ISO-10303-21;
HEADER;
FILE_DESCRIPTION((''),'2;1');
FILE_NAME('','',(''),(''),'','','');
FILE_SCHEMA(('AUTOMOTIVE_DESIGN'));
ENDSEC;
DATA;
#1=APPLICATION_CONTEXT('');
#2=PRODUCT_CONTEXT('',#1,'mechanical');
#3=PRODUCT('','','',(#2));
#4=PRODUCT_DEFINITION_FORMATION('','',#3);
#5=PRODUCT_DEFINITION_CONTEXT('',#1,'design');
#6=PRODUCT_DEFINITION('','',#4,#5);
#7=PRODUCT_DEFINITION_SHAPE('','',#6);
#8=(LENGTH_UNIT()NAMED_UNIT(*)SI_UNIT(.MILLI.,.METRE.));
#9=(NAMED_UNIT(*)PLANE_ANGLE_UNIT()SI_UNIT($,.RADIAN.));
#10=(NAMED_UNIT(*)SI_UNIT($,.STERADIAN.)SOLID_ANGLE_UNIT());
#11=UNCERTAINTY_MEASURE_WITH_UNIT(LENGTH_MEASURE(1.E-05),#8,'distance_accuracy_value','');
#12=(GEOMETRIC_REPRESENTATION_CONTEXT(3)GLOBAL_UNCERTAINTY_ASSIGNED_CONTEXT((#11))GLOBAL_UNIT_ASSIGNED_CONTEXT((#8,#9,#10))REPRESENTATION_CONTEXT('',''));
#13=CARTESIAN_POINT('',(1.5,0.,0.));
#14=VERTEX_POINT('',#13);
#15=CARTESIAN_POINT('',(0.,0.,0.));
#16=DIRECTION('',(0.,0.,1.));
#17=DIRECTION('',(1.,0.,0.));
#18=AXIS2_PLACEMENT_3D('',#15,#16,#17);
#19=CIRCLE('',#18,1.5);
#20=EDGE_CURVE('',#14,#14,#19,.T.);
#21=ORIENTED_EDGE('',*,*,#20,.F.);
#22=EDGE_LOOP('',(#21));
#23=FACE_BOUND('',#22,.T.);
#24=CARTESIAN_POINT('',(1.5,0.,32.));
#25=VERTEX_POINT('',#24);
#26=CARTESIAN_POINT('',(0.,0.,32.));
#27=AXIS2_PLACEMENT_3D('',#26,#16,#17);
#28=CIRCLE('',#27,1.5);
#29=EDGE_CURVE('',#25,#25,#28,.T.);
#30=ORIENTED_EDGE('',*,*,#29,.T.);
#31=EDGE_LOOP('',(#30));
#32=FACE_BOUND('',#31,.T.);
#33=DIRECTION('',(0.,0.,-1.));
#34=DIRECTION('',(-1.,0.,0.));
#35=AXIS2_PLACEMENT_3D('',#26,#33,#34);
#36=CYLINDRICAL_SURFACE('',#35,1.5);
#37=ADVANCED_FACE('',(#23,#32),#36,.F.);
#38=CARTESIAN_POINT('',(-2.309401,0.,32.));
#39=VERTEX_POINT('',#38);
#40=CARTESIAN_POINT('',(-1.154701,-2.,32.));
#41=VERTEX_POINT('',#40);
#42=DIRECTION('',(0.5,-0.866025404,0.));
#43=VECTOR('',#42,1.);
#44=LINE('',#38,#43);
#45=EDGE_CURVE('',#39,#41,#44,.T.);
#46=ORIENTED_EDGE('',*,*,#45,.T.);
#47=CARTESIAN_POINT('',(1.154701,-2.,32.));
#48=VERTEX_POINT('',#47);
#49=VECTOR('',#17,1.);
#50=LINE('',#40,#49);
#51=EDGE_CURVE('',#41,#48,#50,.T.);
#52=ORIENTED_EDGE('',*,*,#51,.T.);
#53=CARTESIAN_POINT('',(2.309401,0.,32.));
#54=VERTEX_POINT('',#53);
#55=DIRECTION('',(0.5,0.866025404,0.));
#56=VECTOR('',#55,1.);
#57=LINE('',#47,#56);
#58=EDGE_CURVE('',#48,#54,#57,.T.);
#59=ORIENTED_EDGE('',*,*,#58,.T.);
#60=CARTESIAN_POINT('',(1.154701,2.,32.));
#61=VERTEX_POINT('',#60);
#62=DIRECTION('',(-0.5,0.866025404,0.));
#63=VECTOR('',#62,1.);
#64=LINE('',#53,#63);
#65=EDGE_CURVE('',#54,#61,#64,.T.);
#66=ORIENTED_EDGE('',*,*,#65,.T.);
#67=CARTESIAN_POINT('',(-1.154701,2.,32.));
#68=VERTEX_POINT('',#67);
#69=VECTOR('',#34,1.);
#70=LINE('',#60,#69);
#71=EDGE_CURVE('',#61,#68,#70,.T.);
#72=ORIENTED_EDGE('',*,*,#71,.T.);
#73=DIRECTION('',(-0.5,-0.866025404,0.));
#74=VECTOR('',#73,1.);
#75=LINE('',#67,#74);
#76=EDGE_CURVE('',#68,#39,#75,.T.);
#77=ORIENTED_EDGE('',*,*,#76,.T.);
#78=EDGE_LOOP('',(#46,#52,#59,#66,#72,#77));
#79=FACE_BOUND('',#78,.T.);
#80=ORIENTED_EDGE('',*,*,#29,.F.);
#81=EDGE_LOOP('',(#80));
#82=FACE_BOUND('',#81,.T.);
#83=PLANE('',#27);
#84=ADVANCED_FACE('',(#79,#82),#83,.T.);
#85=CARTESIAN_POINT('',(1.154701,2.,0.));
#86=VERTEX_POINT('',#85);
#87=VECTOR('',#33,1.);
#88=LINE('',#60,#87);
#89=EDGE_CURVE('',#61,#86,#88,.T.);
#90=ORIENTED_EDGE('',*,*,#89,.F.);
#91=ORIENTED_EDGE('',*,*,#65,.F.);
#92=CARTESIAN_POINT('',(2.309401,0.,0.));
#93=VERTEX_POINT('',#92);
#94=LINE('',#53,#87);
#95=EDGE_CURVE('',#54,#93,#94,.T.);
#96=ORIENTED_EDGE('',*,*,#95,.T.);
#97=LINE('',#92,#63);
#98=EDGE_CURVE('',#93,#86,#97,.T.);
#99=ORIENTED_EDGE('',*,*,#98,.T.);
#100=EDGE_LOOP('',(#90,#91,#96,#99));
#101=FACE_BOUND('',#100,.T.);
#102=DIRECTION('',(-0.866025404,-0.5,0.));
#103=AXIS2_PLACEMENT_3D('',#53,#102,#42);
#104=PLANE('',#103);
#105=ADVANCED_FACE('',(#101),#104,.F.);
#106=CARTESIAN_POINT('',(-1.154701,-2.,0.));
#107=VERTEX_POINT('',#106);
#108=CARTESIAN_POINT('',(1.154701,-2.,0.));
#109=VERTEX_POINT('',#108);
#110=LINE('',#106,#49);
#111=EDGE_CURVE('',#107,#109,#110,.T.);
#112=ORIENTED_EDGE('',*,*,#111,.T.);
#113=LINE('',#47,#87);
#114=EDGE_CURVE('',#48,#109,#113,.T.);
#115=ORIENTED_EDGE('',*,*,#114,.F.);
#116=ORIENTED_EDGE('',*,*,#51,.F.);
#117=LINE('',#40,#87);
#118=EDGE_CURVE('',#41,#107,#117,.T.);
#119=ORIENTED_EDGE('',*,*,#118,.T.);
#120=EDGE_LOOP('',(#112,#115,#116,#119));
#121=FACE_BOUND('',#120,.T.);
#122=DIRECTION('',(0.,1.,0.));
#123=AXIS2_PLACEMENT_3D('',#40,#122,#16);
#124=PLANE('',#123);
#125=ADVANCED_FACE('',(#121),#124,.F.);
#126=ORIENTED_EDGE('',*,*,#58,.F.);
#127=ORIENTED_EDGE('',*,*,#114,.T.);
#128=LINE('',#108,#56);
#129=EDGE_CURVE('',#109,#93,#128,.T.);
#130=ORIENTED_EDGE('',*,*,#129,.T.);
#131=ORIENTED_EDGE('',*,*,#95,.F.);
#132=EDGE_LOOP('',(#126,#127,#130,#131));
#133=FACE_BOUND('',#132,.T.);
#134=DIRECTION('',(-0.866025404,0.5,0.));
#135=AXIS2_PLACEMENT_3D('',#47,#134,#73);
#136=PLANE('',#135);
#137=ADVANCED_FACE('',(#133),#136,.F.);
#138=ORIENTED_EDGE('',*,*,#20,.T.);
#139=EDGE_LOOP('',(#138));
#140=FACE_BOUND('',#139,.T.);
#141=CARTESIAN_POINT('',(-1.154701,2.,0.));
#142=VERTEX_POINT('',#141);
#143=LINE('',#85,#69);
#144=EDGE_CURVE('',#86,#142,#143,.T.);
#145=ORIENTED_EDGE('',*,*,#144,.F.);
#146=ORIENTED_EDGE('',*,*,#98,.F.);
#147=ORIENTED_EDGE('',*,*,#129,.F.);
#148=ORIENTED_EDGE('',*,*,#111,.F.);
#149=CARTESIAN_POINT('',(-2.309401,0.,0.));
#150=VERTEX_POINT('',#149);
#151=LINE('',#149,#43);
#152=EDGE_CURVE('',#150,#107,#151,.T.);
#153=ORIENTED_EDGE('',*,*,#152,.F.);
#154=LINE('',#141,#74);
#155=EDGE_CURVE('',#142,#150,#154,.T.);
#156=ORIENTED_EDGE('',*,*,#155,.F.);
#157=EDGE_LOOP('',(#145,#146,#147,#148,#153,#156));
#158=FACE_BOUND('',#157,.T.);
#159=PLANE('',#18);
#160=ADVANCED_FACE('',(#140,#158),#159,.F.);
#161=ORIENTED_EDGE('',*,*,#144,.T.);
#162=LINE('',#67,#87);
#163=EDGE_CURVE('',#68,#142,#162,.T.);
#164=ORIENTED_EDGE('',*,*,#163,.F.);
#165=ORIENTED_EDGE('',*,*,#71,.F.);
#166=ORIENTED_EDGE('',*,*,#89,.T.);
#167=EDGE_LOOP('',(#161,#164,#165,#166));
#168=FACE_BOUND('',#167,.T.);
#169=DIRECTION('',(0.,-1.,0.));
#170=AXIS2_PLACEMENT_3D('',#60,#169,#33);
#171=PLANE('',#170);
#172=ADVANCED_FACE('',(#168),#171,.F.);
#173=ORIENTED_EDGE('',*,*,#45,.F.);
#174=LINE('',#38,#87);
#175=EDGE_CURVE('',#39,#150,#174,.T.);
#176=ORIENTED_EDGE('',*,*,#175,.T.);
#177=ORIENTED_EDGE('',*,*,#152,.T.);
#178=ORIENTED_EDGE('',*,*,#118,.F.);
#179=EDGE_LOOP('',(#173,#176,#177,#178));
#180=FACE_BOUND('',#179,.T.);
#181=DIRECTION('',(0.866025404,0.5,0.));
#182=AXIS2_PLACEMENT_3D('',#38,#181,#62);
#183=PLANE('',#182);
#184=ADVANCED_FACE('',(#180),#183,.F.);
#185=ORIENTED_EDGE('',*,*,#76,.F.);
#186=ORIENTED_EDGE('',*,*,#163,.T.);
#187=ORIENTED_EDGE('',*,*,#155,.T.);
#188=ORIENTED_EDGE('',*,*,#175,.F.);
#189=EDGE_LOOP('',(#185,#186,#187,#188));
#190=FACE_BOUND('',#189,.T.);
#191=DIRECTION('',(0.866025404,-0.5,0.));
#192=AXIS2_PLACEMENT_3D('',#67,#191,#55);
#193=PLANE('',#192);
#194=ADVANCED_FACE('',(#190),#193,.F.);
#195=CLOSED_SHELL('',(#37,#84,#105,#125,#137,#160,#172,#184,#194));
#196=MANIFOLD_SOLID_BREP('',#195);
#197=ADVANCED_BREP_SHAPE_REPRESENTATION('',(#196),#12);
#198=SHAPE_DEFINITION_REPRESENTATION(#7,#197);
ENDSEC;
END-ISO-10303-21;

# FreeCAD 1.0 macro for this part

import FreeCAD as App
import Part
import Sketcher
Q = App.Units.Quantity


def add_polygon(sketch, points):
    """Adds a closed chain of lines whose ends are joined by coincident constraints."""
    first, n = sketch.GeometryCount, len(points)
    for a, b in zip(points, points[1:] + points[:1]):
        sketch.addGeometry(Part.LineSegment(App.Vector(*a, 0), App.Vector(*b, 0)), False)
    for i in range(n):
        sketch.addConstraint(Sketcher.Constraint("Coincident", first + i, 2, first + (i + 1) % n, 1))

doc = App.newDocument("Part")
body = doc.addObject("PartDesign::Body", "Body")

# Sketch on XY plane
sketch1 = doc.addObject("Sketcher::SketchObject", "Sketch")
body.addObject(sketch1)
sketch1.AttachmentSupport = (doc.XY_Plane, [""])
sketch1.MapMode = "FlatFace"
add_polygon(sketch1, [(2.3, 0), (1.2, 2), (-1.2, 2), (-2.3, 0), (-1.2, -2), (1.2, -2)])  # lines 0-5
sketch1.addGeometry(Part.Circle(App.Vector(0, 0, 0), App.Vector(0, 0, 1), 1.5), False)  # 6
sketch1.addConstraint([
    Sketcher.Constraint("Horizontal", 1),
    Sketcher.Constraint("Horizontal", 4),
    Sketcher.Constraint("Coincident", 6, 3, -1, 1),
    Sketcher.Constraint("Symmetric", 0, 2, 3, 2, -1, 1),
    Sketcher.Constraint("Symmetric", 2, 2, 5, 2, -1, 1),
    Sketcher.Constraint("PointOnObject", 2, 2, -1),
    Sketcher.Constraint("Parallel", 2, 5),
    Sketcher.Constraint("Vertical", 1, 2, 3, 2),
    Sketcher.Constraint("Diameter", 6, 3.0),
    Sketcher.Constraint("Angle", 0, Q("120 deg")),
    Sketcher.Constraint("DistanceY", -1, 1, 0, 2, 2.0),
    Sketcher.Constraint("DistanceX", 1, 2, 1, 1, 2.309401),
])
pad1 = doc.addObject("PartDesign::Pad", "Pad")
body.addObject(pad1)
pad1.Profile = sketch1
pad1.Length = 32

doc.recompute()
